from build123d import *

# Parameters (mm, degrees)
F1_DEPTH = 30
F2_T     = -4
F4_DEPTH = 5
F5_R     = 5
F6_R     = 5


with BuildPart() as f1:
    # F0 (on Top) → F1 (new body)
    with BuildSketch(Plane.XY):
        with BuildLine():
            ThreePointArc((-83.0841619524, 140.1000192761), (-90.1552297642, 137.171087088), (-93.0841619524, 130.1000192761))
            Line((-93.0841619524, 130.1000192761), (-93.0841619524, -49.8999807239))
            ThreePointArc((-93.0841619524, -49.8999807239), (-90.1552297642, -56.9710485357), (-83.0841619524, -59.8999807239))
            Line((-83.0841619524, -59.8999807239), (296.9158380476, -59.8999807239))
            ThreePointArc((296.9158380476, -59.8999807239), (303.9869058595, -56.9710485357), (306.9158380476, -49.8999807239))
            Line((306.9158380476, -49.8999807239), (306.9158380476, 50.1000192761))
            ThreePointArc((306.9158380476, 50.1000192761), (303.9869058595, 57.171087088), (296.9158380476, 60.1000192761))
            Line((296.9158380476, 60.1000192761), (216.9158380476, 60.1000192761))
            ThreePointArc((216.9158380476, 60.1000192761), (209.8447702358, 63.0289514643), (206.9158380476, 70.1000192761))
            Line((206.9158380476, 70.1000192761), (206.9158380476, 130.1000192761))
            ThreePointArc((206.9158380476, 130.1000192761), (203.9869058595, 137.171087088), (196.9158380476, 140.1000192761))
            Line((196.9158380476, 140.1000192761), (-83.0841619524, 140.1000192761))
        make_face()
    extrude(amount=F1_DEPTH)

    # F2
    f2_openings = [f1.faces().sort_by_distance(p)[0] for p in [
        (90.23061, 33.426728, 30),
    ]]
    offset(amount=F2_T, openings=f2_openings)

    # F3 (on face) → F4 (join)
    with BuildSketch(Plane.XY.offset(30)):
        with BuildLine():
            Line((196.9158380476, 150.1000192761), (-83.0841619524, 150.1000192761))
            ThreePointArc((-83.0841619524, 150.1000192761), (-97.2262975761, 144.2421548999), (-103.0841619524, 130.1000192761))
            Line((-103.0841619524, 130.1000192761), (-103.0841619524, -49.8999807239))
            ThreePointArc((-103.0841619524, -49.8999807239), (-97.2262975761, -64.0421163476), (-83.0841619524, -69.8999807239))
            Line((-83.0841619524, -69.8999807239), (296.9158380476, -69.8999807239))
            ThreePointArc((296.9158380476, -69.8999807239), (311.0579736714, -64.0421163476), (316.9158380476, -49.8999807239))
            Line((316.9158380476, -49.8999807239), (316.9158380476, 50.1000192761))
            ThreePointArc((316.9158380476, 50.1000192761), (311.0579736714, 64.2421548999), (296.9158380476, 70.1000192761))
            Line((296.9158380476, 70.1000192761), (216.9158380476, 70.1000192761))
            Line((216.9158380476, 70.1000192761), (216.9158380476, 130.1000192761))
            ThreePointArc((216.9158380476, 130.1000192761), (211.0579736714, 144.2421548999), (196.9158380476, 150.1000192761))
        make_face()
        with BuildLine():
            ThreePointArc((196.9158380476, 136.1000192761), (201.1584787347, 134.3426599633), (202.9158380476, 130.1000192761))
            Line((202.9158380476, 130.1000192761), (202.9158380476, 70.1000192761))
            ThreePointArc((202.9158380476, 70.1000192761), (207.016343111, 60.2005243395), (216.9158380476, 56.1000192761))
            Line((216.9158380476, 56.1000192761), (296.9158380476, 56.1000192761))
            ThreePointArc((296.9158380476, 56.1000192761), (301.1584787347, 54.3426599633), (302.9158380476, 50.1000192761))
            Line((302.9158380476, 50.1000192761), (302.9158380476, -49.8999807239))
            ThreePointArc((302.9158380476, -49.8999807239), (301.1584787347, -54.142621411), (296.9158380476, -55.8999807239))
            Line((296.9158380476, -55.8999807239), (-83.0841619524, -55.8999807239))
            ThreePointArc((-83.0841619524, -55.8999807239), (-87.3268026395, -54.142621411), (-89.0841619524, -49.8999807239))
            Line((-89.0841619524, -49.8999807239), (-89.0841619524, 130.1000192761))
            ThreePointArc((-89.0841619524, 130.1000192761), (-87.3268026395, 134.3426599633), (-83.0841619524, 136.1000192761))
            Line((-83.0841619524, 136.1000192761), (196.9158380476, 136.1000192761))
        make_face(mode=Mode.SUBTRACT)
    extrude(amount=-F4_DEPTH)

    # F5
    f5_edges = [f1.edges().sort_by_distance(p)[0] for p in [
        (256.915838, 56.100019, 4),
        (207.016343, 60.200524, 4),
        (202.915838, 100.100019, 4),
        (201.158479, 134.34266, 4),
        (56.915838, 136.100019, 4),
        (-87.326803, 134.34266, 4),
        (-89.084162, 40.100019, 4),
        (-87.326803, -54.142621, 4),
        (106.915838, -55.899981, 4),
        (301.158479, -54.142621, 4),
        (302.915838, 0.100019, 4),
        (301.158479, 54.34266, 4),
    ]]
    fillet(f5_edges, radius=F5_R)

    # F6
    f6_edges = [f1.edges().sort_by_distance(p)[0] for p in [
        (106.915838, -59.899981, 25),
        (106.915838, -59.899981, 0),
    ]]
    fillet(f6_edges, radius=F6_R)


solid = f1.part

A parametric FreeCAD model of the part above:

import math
import FreeCAD as App
import Part
import Sketcher

V = App.Vector
Q = App.Units.Quantity


def edges_at(feature, points):
    """Names of the edges that pass closest to the given points."""
    edges = feature.Shape.Edges
    near = lambda p: min(range(len(edges)), key=lambda i: edges[i].distToShape(Part.Vertex(*p))[0])
    return sorted({f"Edge{near(p) + 1}" for p in points})


def faces_at(feature, points):
    """Names of the faces that lie closest to the given points."""
    faces = feature.Shape.Faces
    near = lambda p: min(range(len(faces)), key=lambda i: faces[i].distToShape(Part.Vertex(*p))[0])
    return sorted({f"Face{near(p) + 1}" for p in points})

doc = App.newDocument("Part")
body = doc.addObject("PartDesign::Body", "Body")

sketch1 = body.newObject("Sketcher::SketchObject", "Sketch")
sketch1.AttachmentSupport = (doc.getObject("XY_Plane"), [""])
sketch1.MapMode = "FlatFace"
sketch1.addGeometry([
    Part.ArcOfCircle(Part.Circle(V(-83, 130, 0), V(0, 0, 1), 10), math.radians(90), math.radians(180)),
    Part.LineSegment(V(-93, 130, 0), V(-93, -50, 0)),
    Part.ArcOfCircle(Part.Circle(V(-83, -50, 0), V(0, 0, 1), 10), math.radians(180), math.radians(270)),
    Part.LineSegment(V(-83, -60, 0), V(297, -60, 0)),
    Part.ArcOfCircle(Part.Circle(V(297, -50, 0), V(0, 0, 1), 10), math.radians(-90), math.radians(0)),
    Part.LineSegment(V(307, -50, 0), V(307, 50, 0)),
    Part.ArcOfCircle(Part.Circle(V(297, 50, 0), V(0, 0, 1), 10), math.radians(0), math.radians(90)),
    Part.LineSegment(V(297, 60, 0), V(217, 60, 0)),
    Part.ArcOfCircle(Part.Circle(V(217, 70, 0), V(0, 0, 1), 10), math.radians(180), math.radians(270)),
    Part.LineSegment(V(207, 70, 0), V(207, 130, 0)),
    Part.ArcOfCircle(Part.Circle(V(197, 130, 0), V(0, 0, 1), 10), math.radians(0), math.radians(90)),
    Part.LineSegment(V(197, 140, 0), V(-83, 140, 0)),
], False)
sketch1.addConstraint([
    Sketcher.Constraint("Tangent", 0, 2, 1, 1),
    Sketcher.Constraint("Tangent", 1, 2, 2, 1),
    Sketcher.Constraint("Tangent", 2, 2, 3, 1),
    Sketcher.Constraint("Tangent", 3, 2, 4, 1),
    Sketcher.Constraint("Tangent", 4, 2, 5, 1),
    Sketcher.Constraint("Tangent", 5, 2, 6, 1),
    Sketcher.Constraint("Tangent", 6, 2, 7, 1),
    Sketcher.Constraint("Tangent", 7, 2, 8, 2),
    Sketcher.Constraint("Tangent", 8, 1, 9, 1),
    Sketcher.Constraint("Tangent", 9, 2, 10, 1),
    Sketcher.Constraint("Tangent", 10, 2, 11, 1),
    Sketcher.Constraint("Tangent", 11, 2, 0, 1),
    Sketcher.Constraint("Vertical", 1),
    Sketcher.Constraint("Horizontal", 3),
    Sketcher.Constraint("Vertical", 5),
    Sketcher.Constraint("Horizontal", 7),
    Sketcher.Constraint("Vertical", 9),
    Sketcher.Constraint("Horizontal", 11),
    Sketcher.Constraint("Equal", 0, 2),
    Sketcher.Constraint("Equal", 2, 4),
    Sketcher.Constraint("Equal", 4, 6),
    Sketcher.Constraint("Equal", 6, 8),
    Sketcher.Constraint("Equal", 8, 10),
    Sketcher.Constraint("Radius", 0, Q("10 mm")),
    Sketcher.Constraint("DistanceX", 3, 1, 3, 2, Q("380 mm")),
    Sketcher.Constraint("DistanceX", 7, 2, 7, 1, Q("80 mm")),
    Sketcher.Constraint("DistanceY", 1, 2, 1, 1, Q("180 mm")),
    Sketcher.Constraint("DistanceY", 5, 1, 5, 2, Q("100 mm")),
    Sketcher.Constraint("DistanceX", 0, 3, -1, 1, Q("83.084162 mm")),
    Sketcher.Constraint("DistanceY", -1, 1, 0, 3, Q("130.100019 mm")),
])
pad1 = body.newObject("PartDesign::Pad", "Pad")
pad1.Profile = sketch1
pad1.Length = 30
doc.recompute()

thickness = body.newObject("PartDesign::Thickness", "Thickness")
thickness.Base = (pad1, faces_at(pad1, [(106.916, 40.1, 30)]))
thickness.Value = 4
thickness.Reversed = True
thickness.Join = "Arc"

sketch2 = body.newObject("Sketcher::SketchObject", "Sketch001")
sketch2.AttachmentSupport = (doc.getObject("XY_Plane"), [""])
sketch2.MapMode = "FlatFace"
sketch2.AttachmentOffset = App.Placement(V(0, 0, 30), App.Rotation())
sketch2.addGeometry([
    Part.LineSegment(V(197, 150, 0), V(-83, 150, 0)),
    Part.ArcOfCircle(Part.Circle(V(-83, 130, 0), V(0, 0, 1), 20), math.radians(90), math.radians(180)),
    Part.LineSegment(V(-103, 130, 0), V(-103, -50, 0)),
    Part.ArcOfCircle(Part.Circle(V(-83, -50, 0), V(0, 0, 1), 20), math.radians(180), math.radians(270)),
    Part.LineSegment(V(-83, -70, 0), V(297, -70, 0)),
    Part.ArcOfCircle(Part.Circle(V(297, -50, 0), V(0, 0, 1), 20), math.radians(-90), math.radians(0)),
    Part.LineSegment(V(317, -50, 0), V(317, 50, 0)),
    Part.ArcOfCircle(Part.Circle(V(297, 50, 0), V(0, 0, 1), 20), math.radians(0), math.radians(90)),
    Part.LineSegment(V(297, 70, 0), V(217, 70, 0)),
    Part.LineSegment(V(217, 70, 0), V(217, 130, 0)),
    Part.ArcOfCircle(Part.Circle(V(197, 130, 0), V(0, 0, 1), 20), math.radians(0), math.radians(90)),
    Part.LineSegment(V(-83, 136, 0), V(197, 136, 0)),
    Part.ArcOfCircle(Part.Circle(V(197, 130, 0), V(0, 0, 1), 6), math.radians(0), math.radians(90)),
    Part.LineSegment(V(203, 130, 0), V(203, 70, 0)),
    Part.ArcOfCircle(Part.Circle(V(217, 70, 0), V(0, 0, 1), 14), math.radians(180), math.radians(270)),
    Part.LineSegment(V(217, 56, 0), V(297, 56, 0)),
    Part.ArcOfCircle(Part.Circle(V(297, 50, 0), V(0, 0, 1), 6), math.radians(0), math.radians(90)),
    Part.LineSegment(V(303, 50, 0), V(303, -50, 0)),
    Part.ArcOfCircle(Part.Circle(V(297, -50, 0), V(0, 0, 1), 6), math.radians(-90), math.radians(0)),
    Part.LineSegment(V(297, -56, 0), V(-83, -56, 0)),
    Part.ArcOfCircle(Part.Circle(V(-83, -50, 0), V(0, 0, 1), 6), math.radians(180), math.radians(270)),
    Part.LineSegment(V(-89, -50, 0), V(-89, 130, 0)),
    Part.ArcOfCircle(Part.Circle(V(-83, 130, 0), V(0, 0, 1), 6), math.radians(90), math.radians(180)),
], False)
sketch2.addConstraint([
    Sketcher.Constraint("Tangent", 0, 2, 1, 1),
    Sketcher.Constraint("Tangent", 1, 2, 2, 1),
    Sketcher.Constraint("Tangent", 2, 2, 3, 1),
    Sketcher.Constraint("Tangent", 3, 2, 4, 1),
    Sketcher.Constraint("Tangent", 4, 2, 5, 1),
    Sketcher.Constraint("Tangent", 5, 2, 6, 1),
    Sketcher.Constraint("Tangent", 6, 2, 7, 1),
    Sketcher.Constraint("Tangent", 7, 2, 8, 1),
    Sketcher.Constraint("Coincident", 8, 2, 9, 1),
    Sketcher.Constraint("Tangent", 9, 2, 10, 1),
    Sketcher.Constraint("Tangent", 10, 2, 0, 1),
    Sketcher.Constraint("Tangent", 11, 2, 12, 2),
    Sketcher.Constraint("Tangent", 12, 1, 13, 1),
    Sketcher.Constraint("Tangent", 13, 2, 14, 1),
    Sketcher.Constraint("Tangent", 14, 2, 15, 1),
    Sketcher.Constraint("Tangent", 15, 2, 16, 2),
    Sketcher.Constraint("Tangent", 16, 1, 17, 1),
    Sketcher.Constraint("Tangent", 17, 2, 18, 2),
    Sketcher.Constraint("Tangent", 18, 1, 19, 1),
    Sketcher.Constraint("Tangent", 19, 2, 20, 2),
    Sketcher.Constraint("Tangent", 20, 1, 21, 1),
    Sketcher.Constraint("Tangent", 21, 2, 22, 2),
    Sketcher.Constraint("Tangent", 22, 1, 11, 1),
    Sketcher.Constraint("Horizontal", 0),
    Sketcher.Constraint("Vertical", 2),
    Sketcher.Constraint("Horizontal", 4),
    Sketcher.Constraint("Vertical", 6),
    Sketcher.Constraint("Horizontal", 8),
    Sketcher.Constraint("Vertical", 9),
    Sketcher.Constraint("Horizontal", 11),
    Sketcher.Constraint("Vertical", 13),
    Sketcher.Constraint("Horizontal", 15),
    Sketcher.Constraint("Vertical", 17),
    Sketcher.Constraint("Horizontal", 19),
    Sketcher.Constraint("Vertical", 21),
    Sketcher.Constraint("Coincident", 12, 3, 10, 3),
    Sketcher.Constraint("Coincident", 16, 3, 7, 3),
    Sketcher.Constraint("Coincident", 18, 3, 5, 3),
    Sketcher.Constraint("Coincident", 20, 3, 3, 3),
    Sketcher.Constraint("Coincident", 22, 3, 1, 3),
    Sketcher.Constraint("Equal", 1, 3),
    Sketcher.Constraint("Equal", 3, 5),
    Sketcher.Constraint("Equal", 5, 7),
    Sketcher.Constraint("Equal", 7, 10),
    Sketcher.Constraint("Horizontal", 14, 3, 7, 2),
    Sketcher.Constraint("Radius", 1, Q("20 mm")),
    Sketcher.Constraint("Radius", 12, Q("6 mm")),
    Sketcher.Constraint("DistanceX", 0, 2, 0, 1, Q("280 mm")),
    Sketcher.Constraint("DistanceX", 4, 1, 4, 2, Q("380 mm")),
    Sketcher.Constraint("DistanceY", 2, 2, 2, 1, Q("180 mm")),
    Sketcher.Constraint("DistanceY", 6, 1, 6, 2, Q("100 mm")),
    Sketcher.Constraint("DistanceX", 1, 3, -1, 1, Q("83.084162 mm")),
    Sketcher.Constraint("DistanceY", -1, 1, 1, 3, Q("130.100019 mm")),
])
pad2 = body.newObject("PartDesign::Pad", "Pad001")
pad2.Profile = sketch2
pad2.Length = 5
pad2.Reversed = True
doc.recompute()

fillet = body.newObject("PartDesign::Fillet", "Fillet")
fillet.Base = (pad2, edges_at(pad2, [
    (256.916, 56.1, 4),
    (207.016, 60.201, 4),
    (202.916, 100.1, 4),
    (201.158, 134.343, 4),
    (56.916, 136.1, 4),
    (-87.327, 134.343, 4),
    (-89.084, 40.1, 4),
    (-87.327, -54.143, 4),
    (106.916, -55.9, 4),
    (301.158, -54.143, 4),
    (302.916, 0.1, 4),
    (301.158, 54.343, 4),
]))
fillet.Radius = 5
doc.recompute()

fillet2 = body.newObject("PartDesign::Fillet", "Fillet001")
fillet2.Base = (fillet, edges_at(fillet, [(106.916, -59.9, 25), (106.916, -59.9, 0)]))
fillet2.Radius = 5

doc.recompute()
